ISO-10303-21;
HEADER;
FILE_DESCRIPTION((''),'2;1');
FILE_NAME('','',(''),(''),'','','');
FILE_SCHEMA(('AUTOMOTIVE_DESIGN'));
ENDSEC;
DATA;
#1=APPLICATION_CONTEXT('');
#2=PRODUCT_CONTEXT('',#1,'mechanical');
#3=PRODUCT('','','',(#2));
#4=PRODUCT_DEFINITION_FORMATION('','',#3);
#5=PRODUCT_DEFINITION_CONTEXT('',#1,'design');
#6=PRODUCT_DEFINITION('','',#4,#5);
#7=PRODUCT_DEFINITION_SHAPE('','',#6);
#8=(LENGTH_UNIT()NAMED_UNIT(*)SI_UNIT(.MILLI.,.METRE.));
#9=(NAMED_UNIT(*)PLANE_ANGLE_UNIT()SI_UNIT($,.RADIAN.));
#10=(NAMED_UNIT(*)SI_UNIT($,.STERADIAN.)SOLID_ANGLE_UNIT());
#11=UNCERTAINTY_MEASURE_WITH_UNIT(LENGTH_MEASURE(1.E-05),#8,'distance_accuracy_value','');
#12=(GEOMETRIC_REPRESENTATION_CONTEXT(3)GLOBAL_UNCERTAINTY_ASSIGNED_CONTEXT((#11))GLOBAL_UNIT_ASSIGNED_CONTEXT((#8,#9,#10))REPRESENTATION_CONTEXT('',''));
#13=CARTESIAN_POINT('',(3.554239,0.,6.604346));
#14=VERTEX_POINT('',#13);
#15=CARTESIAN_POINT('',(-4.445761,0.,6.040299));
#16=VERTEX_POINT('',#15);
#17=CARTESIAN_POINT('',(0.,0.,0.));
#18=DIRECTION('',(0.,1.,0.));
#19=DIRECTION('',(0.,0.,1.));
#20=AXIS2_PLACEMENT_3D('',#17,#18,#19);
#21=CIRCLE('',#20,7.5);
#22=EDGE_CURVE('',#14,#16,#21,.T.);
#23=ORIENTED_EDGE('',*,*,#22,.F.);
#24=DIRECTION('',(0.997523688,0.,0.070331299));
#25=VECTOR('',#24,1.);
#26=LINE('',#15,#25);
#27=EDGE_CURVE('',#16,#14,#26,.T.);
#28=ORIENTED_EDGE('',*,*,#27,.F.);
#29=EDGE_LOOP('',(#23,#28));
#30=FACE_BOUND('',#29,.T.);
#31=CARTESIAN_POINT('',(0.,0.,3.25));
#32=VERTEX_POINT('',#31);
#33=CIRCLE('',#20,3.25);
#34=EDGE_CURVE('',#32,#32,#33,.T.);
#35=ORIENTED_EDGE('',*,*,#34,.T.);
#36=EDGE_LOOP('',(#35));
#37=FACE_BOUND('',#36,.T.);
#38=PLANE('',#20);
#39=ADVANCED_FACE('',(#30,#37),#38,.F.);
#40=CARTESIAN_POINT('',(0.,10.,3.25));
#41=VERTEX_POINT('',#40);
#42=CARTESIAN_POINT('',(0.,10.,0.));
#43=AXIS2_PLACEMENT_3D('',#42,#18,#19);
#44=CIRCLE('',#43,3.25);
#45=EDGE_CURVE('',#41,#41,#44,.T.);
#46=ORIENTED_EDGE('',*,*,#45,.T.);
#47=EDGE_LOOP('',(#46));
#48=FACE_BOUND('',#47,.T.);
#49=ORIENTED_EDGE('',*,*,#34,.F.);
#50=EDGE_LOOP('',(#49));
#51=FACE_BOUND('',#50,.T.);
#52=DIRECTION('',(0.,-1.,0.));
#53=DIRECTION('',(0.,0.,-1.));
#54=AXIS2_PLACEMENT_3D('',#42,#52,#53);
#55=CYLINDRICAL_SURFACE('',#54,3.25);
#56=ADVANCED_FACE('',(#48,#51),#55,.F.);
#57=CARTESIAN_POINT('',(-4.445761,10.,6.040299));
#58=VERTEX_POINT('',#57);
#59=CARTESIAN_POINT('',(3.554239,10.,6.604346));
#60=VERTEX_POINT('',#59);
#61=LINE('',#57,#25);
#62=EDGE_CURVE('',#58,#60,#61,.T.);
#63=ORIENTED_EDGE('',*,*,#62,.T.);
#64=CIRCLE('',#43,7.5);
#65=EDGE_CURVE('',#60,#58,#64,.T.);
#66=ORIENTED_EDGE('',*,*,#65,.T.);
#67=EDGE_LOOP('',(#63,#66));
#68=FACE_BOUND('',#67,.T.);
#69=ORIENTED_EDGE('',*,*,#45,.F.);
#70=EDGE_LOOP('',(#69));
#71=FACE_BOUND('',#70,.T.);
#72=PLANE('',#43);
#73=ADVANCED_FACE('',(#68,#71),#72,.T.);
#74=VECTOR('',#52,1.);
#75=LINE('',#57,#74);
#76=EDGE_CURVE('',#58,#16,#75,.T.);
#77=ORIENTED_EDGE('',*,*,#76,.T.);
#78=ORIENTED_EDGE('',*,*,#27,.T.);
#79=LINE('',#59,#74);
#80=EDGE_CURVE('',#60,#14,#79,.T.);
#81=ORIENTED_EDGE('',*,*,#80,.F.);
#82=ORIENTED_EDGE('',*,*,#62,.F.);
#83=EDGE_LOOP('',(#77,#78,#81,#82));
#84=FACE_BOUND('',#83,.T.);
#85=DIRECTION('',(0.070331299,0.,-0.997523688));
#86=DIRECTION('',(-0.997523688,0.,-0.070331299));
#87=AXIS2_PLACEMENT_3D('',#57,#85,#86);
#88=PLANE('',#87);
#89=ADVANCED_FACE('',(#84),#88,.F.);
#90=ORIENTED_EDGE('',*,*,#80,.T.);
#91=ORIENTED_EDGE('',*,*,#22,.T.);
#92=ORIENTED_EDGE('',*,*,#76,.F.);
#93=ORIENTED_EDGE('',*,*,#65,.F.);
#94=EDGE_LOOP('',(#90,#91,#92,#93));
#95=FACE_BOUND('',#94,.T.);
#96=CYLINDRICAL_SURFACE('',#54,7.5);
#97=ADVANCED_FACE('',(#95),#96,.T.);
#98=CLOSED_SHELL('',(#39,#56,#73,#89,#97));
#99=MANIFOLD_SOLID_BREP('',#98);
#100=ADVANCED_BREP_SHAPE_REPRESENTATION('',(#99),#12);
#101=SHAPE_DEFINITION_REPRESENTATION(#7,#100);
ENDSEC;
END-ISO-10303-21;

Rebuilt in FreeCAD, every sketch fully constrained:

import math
import FreeCAD as App
import Part
import Sketcher
from FreeCAD import Vector
Q = App.Units.Quantity

doc = App.newDocument("Part")
body = doc.addObject("PartDesign::Body", "Body")

sketch1 = body.newObject("Sketcher::SketchObject", "Sketch")
sketch1.AttachmentSupport = (doc.getObject("XZ_Plane"), [""])
sketch1.MapMode = "FlatFace"
sketch1.addGeometry([
    Part.LineSegment(Vector(-4.4, 6, 0), Vector(3.6, 6.6, 0)),
    Part.ArcOfCircle(Part.Circle(Vector(0, 0, 0), Vector(0, 0, 1), 7.5), math.radians(126), math.radians(422)),
    Part.Circle(Vector(0, 0, 0), Vector(0, 0, 1), 3.2),
], False)
sketch1.addConstraint([
    Sketcher.Constraint("Coincident", 0, 1, 1, 1),
    Sketcher.Constraint("Coincident", 1, 2, 0, 2),
    Sketcher.Constraint("Coincident", 1, 3, -1, 1),
    Sketcher.Constraint("Coincident", 2, 3, -1, 1),
    Sketcher.Constraint("Diameter", 2, Q("6.5 mm")),
    Sketcher.Constraint("Radius", 1, Q("7.5 mm")),
    Sketcher.Constraint("DistanceX", 0, 1, 1, 2, Q("8 mm")),
    Sketcher.Constraint("DistanceY", -1, 1, 0, 1, Q("6.040299 mm")),
])
pad1 = body.newObject("PartDesign::Pad", "Pad")
pad1.Profile = sketch1
pad1.Length = 10
pad1.Reversed = True

doc.recompute()
